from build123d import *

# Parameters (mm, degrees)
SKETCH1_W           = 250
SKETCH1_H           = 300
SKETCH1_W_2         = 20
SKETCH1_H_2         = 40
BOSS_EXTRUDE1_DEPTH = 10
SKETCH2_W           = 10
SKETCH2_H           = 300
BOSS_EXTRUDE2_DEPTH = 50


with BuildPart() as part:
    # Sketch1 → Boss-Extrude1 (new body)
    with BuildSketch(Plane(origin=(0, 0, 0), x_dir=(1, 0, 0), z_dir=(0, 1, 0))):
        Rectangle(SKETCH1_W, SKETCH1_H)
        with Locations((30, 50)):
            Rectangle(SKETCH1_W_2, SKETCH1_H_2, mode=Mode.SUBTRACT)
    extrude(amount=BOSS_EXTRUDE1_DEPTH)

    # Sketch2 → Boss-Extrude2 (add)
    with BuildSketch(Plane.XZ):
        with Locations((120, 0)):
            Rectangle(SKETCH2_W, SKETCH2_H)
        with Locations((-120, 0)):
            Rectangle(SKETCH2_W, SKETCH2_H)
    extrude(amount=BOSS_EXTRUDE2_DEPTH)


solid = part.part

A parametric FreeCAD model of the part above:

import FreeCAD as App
import Part
import Sketcher

V = App.Vector

doc = App.newDocument("Part")
body = doc.addObject("PartDesign::Body", "Body")

# Sketch on XZ plane
sketch1 = body.newObject("Sketcher::SketchObject", "Sketch")
sketch1.AttachmentSupport = (doc.getObject("XZ_Plane"), [""])
sketch1.MapMode = "FlatFace"
sketch1.addGeometry(Part.LineSegment(V(-125, -150, 0), V(-125, 150, 0)), False)
sketch1.addGeometry(Part.LineSegment(V(-125, 150, 0), V(125, 150, 0)), False)
sketch1.addGeometry(Part.LineSegment(V(125, 150, 0), V(125, -150, 0)), False)
sketch1.addGeometry(Part.LineSegment(V(125, -150, 0), V(-125, -150, 0)), False)
sketch1.addGeometry(Part.LineSegment(V(40, -30, 0), V(20, -30, 0)), False)
sketch1.addGeometry(Part.LineSegment(V(20, -30, 0), V(20, -70, 0)), False)
sketch1.addGeometry(Part.LineSegment(V(20, -70, 0), V(40, -70, 0)), False)
sketch1.addGeometry(Part.LineSegment(V(40, -70, 0), V(40, -30, 0)), False)
sketch1.addConstraint(Sketcher.Constraint("Coincident", 0, 2, 1, 1))
sketch1.addConstraint(Sketcher.Constraint("Coincident", 1, 2, 2, 1))
sketch1.addConstraint(Sketcher.Constraint("Coincident", 2, 2, 3, 1))
sketch1.addConstraint(Sketcher.Constraint("Coincident", 3, 2, 0, 1))
sketch1.addConstraint(Sketcher.Constraint("Coincident", 4, 2, 5, 1))
sketch1.addConstraint(Sketcher.Constraint("Coincident", 5, 2, 6, 1))
sketch1.addConstraint(Sketcher.Constraint("Coincident", 6, 2, 7, 1))
sketch1.addConstraint(Sketcher.Constraint("Coincident", 7, 2, 4, 1))
sketch1.addConstraint(Sketcher.Constraint("Vertical", 0))
sketch1.addConstraint(Sketcher.Constraint("Horizontal", 1))
sketch1.addConstraint(Sketcher.Constraint("Vertical", 2))
sketch1.addConstraint(Sketcher.Constraint("Horizontal", 3))
sketch1.addConstraint(Sketcher.Constraint("Horizontal", 4))
sketch1.addConstraint(Sketcher.Constraint("Vertical", 5))
sketch1.addConstraint(Sketcher.Constraint("Horizontal", 6))
sketch1.addConstraint(Sketcher.Constraint("Vertical", 7))
sketch1.addConstraint(Sketcher.Constraint("Symmetric", 0, 2, 2, 2, -1, 1))
sketch1.addConstraint(Sketcher.Constraint("DistanceX", 1, 1, 1, 2, 250.0))
sketch1.addConstraint(Sketcher.Constraint("DistanceX", 4, 2, 4, 1, 20.0))
sketch1.addConstraint(Sketcher.Constraint("DistanceY", 0, 1, 0, 2, 300.0))
sketch1.addConstraint(Sketcher.Constraint("DistanceY", 5, 2, 5, 1, 40.0))
sketch1.addConstraint(Sketcher.Constraint("DistanceX", -1, 1, 4, 2, 20.0))
sketch1.addConstraint(Sketcher.Constraint("DistanceY", 4, 2, -1, 1, 30.0))
pad1 = body.newObject("PartDesign::Pad", "Pad")
pad1.Profile = sketch1
pad1.Length = 10
pad1.Reversed = True

# Sketch on XZ plane
sketch2 = body.newObject("Sketcher::SketchObject", "Sketch001")
sketch2.AttachmentSupport = (doc.getObject("XZ_Plane"), [""])
sketch2.MapMode = "FlatFace"
sketch2.addGeometry(Part.LineSegment(V(115, 150, 0), V(115, -150, 0)), False)
sketch2.addGeometry(Part.LineSegment(V(115, -150, 0), V(125, -150, 0)), False)
sketch2.addGeometry(Part.LineSegment(V(125, -150, 0), V(125, 150, 0)), False)
sketch2.addGeometry(Part.LineSegment(V(125, 150, 0), V(115, 150, 0)), False)
sketch2.addGeometry(Part.LineSegment(V(-125, 150, 0), V(-125, -150, 0)), False)
sketch2.addGeometry(Part.LineSegment(V(-125, -150, 0), V(-115, -150, 0)), False)
sketch2.addGeometry(Part.LineSegment(V(-115, -150, 0), V(-115, 150, 0)), False)
sketch2.addGeometry(Part.LineSegment(V(-115, 150, 0), V(-125, 150, 0)), False)
sketch2.addConstraint(Sketcher.Constraint("Coincident", 0, 2, 1, 1))
sketch2.addConstraint(Sketcher.Constraint("Coincident", 1, 2, 2, 1))
sketch2.addConstraint(Sketcher.Constraint("Coincident", 2, 2, 3, 1))
sketch2.addConstraint(Sketcher.Constraint("Coincident", 3, 2, 0, 1))
sketch2.addConstraint(Sketcher.Constraint("Coincident", 4, 2, 5, 1))
sketch2.addConstraint(Sketcher.Constraint("Coincident", 5, 2, 6, 1))
sketch2.addConstraint(Sketcher.Constraint("Coincident", 6, 2, 7, 1))
sketch2.addConstraint(Sketcher.Constraint("Coincident", 7, 2, 4, 1))
sketch2.addConstraint(Sketcher.Constraint("Vertical", 0))
sketch2.addConstraint(Sketcher.Constraint("Horizontal", 1))
sketch2.addConstraint(Sketcher.Constraint("Vertical", 2))
sketch2.addConstraint(Sketcher.Constraint("Horizontal", 3))
sketch2.addConstraint(Sketcher.Constraint("Vertical", 4))
sketch2.addConstraint(Sketcher.Constraint("Horizontal", 5))
sketch2.addConstraint(Sketcher.Constraint("Vertical", 6))
sketch2.addConstraint(Sketcher.Constraint("Horizontal", 7))
sketch2.addConstraint(Sketcher.Constraint("Symmetric", 2, 2, 4, 2, -1, 1))
sketch2.addConstraint(Sketcher.Constraint("Symmetric", 0, 2, 6, 2, -1, 1))
sketch2.addConstraint(Sketcher.Constraint("Horizontal", 1, 2, 4, 2))
sketch2.addConstraint(Sketcher.Constraint("DistanceX", 1, 1, 1, 2, 10.0))
sketch2.addConstraint(Sketcher.Constraint("DistanceY", 0, 2, 0, 1, 300.0))
sketch2.addConstraint(Sketcher.Constraint("DistanceX", -1, 1, 0, 2, 115.0))
pad2 = body.newObject("PartDesign::Pad", "Pad001")
pad2.Profile = sketch2
pad2.Length = 50

doc.recompute()
